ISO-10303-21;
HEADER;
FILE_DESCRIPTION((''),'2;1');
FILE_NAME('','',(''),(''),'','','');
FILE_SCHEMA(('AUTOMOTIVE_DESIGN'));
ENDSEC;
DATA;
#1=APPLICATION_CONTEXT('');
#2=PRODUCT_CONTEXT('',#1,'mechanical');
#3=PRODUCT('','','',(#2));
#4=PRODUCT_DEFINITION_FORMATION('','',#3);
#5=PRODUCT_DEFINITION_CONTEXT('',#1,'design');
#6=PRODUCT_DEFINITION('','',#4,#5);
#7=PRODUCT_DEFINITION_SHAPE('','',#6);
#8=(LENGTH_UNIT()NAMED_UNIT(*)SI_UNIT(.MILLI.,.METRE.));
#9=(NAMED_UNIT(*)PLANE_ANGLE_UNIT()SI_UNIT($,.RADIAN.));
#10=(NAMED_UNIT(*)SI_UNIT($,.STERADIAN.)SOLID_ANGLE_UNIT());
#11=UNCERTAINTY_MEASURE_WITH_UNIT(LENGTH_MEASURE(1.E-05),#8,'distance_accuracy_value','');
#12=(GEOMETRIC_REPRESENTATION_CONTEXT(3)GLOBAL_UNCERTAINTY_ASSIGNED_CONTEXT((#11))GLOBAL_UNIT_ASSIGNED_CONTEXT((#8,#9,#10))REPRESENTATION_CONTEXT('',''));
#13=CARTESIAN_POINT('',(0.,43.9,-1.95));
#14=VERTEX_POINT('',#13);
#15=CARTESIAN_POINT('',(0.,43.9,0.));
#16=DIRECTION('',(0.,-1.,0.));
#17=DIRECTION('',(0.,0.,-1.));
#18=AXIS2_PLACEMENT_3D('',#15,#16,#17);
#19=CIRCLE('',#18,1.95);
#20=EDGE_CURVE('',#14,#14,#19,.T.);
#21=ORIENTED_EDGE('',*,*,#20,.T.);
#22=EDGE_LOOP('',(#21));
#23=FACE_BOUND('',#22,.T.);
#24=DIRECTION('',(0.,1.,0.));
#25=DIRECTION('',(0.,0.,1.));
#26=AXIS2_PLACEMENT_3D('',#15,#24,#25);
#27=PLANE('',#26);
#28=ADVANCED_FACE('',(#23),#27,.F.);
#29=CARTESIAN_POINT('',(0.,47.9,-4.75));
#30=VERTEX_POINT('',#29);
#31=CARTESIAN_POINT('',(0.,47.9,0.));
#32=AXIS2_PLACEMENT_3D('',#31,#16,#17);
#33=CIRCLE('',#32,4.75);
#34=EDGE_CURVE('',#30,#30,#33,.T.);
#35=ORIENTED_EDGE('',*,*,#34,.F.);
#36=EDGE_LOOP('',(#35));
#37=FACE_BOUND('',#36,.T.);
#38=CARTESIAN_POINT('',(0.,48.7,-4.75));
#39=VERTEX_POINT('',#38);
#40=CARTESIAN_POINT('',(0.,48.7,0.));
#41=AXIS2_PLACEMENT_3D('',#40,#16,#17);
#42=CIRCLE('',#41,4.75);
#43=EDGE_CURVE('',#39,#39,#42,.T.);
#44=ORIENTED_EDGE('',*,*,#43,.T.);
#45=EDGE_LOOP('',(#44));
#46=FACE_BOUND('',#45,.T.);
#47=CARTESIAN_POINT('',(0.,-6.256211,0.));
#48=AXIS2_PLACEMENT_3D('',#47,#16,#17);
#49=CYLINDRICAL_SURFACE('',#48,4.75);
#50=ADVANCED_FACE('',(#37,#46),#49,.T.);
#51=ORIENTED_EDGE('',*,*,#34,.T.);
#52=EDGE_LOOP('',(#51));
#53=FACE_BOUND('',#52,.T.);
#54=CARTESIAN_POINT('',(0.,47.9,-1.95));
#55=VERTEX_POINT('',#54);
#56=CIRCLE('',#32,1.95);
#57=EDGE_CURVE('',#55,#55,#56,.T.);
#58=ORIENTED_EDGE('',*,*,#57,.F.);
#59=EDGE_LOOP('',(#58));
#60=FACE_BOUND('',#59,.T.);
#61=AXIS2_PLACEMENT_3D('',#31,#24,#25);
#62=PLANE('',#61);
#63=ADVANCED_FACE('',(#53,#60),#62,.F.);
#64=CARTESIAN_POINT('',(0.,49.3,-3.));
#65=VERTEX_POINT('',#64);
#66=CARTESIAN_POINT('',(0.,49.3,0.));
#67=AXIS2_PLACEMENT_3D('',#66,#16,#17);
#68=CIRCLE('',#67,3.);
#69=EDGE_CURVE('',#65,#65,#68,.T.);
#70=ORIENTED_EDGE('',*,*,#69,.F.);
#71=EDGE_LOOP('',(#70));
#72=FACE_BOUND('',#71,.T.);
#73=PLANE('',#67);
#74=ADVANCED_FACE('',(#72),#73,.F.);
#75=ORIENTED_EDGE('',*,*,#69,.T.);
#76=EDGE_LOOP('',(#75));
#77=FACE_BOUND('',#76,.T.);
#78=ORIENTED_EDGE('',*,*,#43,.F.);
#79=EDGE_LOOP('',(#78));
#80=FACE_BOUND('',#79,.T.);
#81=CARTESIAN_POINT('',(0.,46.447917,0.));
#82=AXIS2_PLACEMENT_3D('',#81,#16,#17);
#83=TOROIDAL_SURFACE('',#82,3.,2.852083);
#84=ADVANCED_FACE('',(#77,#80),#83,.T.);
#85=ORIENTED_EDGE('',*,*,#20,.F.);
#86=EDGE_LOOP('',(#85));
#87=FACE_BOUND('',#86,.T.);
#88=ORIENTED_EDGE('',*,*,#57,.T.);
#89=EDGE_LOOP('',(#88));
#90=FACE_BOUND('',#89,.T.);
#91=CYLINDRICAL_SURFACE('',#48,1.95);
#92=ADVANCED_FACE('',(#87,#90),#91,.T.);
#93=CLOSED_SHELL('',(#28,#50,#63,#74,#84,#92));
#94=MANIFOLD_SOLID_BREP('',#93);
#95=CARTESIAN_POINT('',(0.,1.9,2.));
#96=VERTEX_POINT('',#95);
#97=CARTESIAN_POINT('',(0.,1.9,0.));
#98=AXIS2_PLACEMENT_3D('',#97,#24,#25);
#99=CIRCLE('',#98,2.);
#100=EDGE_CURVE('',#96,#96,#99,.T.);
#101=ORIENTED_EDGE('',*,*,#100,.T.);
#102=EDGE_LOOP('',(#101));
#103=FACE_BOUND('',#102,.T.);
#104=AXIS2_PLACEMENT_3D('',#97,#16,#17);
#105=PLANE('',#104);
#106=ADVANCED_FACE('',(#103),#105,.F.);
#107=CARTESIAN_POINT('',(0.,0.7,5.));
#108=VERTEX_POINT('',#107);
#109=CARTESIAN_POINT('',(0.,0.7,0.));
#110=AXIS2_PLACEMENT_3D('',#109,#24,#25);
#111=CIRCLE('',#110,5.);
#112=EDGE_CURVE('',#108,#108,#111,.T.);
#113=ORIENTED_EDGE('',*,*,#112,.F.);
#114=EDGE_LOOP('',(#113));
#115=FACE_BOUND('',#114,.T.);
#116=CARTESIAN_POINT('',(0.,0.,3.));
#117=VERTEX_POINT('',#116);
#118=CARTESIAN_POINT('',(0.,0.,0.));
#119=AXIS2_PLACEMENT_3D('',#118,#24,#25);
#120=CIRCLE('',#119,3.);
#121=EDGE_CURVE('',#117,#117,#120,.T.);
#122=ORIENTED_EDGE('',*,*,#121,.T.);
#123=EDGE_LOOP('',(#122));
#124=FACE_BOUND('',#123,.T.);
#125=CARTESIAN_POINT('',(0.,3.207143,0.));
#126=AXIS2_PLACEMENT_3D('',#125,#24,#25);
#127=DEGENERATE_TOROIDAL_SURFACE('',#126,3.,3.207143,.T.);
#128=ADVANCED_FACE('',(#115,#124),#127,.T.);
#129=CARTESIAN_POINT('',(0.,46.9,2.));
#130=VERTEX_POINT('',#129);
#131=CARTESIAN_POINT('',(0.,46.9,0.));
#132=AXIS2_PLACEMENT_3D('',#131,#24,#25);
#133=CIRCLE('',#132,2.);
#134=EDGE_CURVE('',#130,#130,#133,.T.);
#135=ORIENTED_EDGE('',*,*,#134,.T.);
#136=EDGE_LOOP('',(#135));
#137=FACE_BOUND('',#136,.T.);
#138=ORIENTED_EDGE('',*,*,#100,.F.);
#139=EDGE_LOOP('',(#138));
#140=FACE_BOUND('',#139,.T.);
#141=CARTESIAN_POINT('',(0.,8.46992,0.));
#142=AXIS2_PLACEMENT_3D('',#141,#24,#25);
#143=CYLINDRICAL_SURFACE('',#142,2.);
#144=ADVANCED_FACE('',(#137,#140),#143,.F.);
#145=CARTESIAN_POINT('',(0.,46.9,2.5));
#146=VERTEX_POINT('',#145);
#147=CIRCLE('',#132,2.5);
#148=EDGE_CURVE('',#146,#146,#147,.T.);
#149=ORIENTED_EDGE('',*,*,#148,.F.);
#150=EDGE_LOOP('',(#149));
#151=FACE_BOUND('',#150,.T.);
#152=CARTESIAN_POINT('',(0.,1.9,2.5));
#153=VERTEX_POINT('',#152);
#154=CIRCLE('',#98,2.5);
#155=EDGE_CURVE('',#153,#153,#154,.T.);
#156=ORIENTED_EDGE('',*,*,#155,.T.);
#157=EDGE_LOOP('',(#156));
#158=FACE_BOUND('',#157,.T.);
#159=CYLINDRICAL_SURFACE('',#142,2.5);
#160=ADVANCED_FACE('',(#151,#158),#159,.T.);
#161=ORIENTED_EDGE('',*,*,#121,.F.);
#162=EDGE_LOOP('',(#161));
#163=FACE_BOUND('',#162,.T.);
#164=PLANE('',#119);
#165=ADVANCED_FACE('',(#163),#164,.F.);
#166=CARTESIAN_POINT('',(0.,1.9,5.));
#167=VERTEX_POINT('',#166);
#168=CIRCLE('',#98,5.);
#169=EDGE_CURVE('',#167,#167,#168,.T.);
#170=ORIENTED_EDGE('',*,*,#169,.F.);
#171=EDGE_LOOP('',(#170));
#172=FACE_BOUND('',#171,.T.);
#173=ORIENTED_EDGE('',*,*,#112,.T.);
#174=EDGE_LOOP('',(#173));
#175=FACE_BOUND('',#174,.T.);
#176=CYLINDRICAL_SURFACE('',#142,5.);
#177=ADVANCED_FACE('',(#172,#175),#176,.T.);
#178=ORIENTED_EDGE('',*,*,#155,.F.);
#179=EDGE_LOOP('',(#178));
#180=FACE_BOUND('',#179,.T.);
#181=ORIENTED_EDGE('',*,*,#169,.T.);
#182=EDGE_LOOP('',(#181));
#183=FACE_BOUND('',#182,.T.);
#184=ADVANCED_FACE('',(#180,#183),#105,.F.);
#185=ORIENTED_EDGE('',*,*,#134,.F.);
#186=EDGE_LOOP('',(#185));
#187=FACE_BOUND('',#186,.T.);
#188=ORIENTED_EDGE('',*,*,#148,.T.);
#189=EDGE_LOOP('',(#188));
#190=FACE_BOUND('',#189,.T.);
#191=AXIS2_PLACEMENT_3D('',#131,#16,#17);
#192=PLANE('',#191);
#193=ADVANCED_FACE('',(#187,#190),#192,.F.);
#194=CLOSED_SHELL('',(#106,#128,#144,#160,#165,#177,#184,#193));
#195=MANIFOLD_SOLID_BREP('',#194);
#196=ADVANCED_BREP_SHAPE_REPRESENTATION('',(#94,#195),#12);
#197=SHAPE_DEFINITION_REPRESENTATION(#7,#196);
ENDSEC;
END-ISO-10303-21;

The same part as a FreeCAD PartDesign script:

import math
import FreeCAD as App
import Part
import Sketcher
from FreeCAD import Vector

doc = App.newDocument("Part")
body = doc.addObject("PartDesign::Body", "Body")

sketch1 = doc.addObject("Sketcher::SketchObject", "Sketch")
body.addObject(sketch1)
sketch1.AttachmentSupport = (doc.XY_Plane, [""])
sketch1.MapMode = "FlatFace"
sketch1.addGeometry(Part.LineSegment(Vector(0, 1.9, 0), Vector(0, 0, 0)), False)
sketch1.addGeometry(Part.LineSegment(Vector(0, 0, 0), Vector(3, 0, 0)), False)
sketch1.addGeometry(Part.ArcOfCircle(Part.Circle(Vector(3, 3.207143, 0), Vector(0, 0, 1), 3.207143), math.radians(-90), math.radians(-51.419908)), False)
sketch1.addGeometry(Part.LineSegment(Vector(5, 0.7, 0), Vector(5, 1.9, 0)), False)
sketch1.addGeometry(Part.LineSegment(Vector(5, 1.9, 0), Vector(2.5, 1.9, 0)), False)
sketch1.addGeometry(Part.LineSegment(Vector(2.5, 1.9, 0), Vector(2.5, 46.9, 0)), False)
sketch1.addGeometry(Part.LineSegment(Vector(2.5, 46.9, 0), Vector(2, 46.9, 0)), False)
sketch1.addGeometry(Part.LineSegment(Vector(2, 46.9, 0), Vector(2, 1.9, 0)), False)
sketch1.addGeometry(Part.LineSegment(Vector(2, 1.9, 0), Vector(0, 1.9, 0)), False)
sketch1.addConstraint(Sketcher.Constraint("Coincident", 0, 2, 1, 1))
sketch1.addConstraint(Sketcher.Constraint("Tangent", 1, 2, 2, 1))
sketch1.addConstraint(Sketcher.Constraint("Coincident", 2, 2, 3, 1))
sketch1.addConstraint(Sketcher.Constraint("Coincident", 3, 2, 4, 1))
sketch1.addConstraint(Sketcher.Constraint("Coincident", 4, 2, 5, 1))
sketch1.addConstraint(Sketcher.Constraint("Coincident", 5, 2, 6, 1))
sketch1.addConstraint(Sketcher.Constraint("Coincident", 6, 2, 7, 1))
sketch1.addConstraint(Sketcher.Constraint("Coincident", 7, 2, 8, 1))
sketch1.addConstraint(Sketcher.Constraint("Coincident", 8, 2, 0, 1))
sketch1.addConstraint(Sketcher.Constraint("Vertical", 0))
sketch1.addConstraint(Sketcher.Constraint("Horizontal", 1))
sketch1.addConstraint(Sketcher.Constraint("Vertical", 3))
sketch1.addConstraint(Sketcher.Constraint("Horizontal", 4))
sketch1.addConstraint(Sketcher.Constraint("Vertical", 5))
sketch1.addConstraint(Sketcher.Constraint("Horizontal", 6))
sketch1.addConstraint(Sketcher.Constraint("Vertical", 7))
sketch1.addConstraint(Sketcher.Constraint("Horizontal", 8))
sketch1.addConstraint(Sketcher.Constraint("Coincident", 0, 2, -1, 1))
sketch1.addConstraint(Sketcher.Constraint("Horizontal", 4, 2, 7, 2))
sketch1.addConstraint(Sketcher.Constraint("DistanceX", 1, 1, 1, 2, 3.0))
sketch1.addConstraint(Sketcher.Constraint("DistanceX", 8, 2, 8, 1, 2.0))
sketch1.addConstraint(Sketcher.Constraint("DistanceY", 5, 1, 5, 2, 45.0))
sketch1.addConstraint(Sketcher.Constraint("DistanceX", 4, 2, 4, 1, 2.5))
sketch1.addConstraint(Sketcher.Constraint("DistanceX", 6, 2, 6, 1, 0.5))
sketch1.addConstraint(Sketcher.Constraint("DistanceY", 0, 2, 0, 1, 1.9))
sketch1.addConstraint(Sketcher.Constraint("DistanceY", 3, 1, 3, 2, 1.2))
revolution = doc.addObject("PartDesign::Revolution", "Revolution")
body.addObject(revolution)
revolution.Profile = sketch1
revolution.ReferenceAxis = (sketch1, ["V_Axis"])
revolution.Angle = 360
body2 = doc.addObject("PartDesign::Body", "Body001")

sketch2 = doc.addObject("Sketcher::SketchObject", "Sketch001")
body2.addObject(sketch2)
sketch2.AttachmentSupport = (doc.getObject("XY_Plane001"), [""])
sketch2.MapMode = "FlatFace"
sketch2.addGeometry(Part.LineSegment(Vector(0, 43.9, 0), Vector(0, 49.3, 0)), False)
sketch2.addGeometry(Part.LineSegment(Vector(0, 49.3, 0), Vector(-3, 49.3, 0)), False)
sketch2.addGeometry(Part.ArcOfCircle(Part.Circle(Vector(-3, 46.447917, 0), Vector(0, 0, 1), 2.852083), math.radians(90), math.radians(127.849289)), False)
sketch2.addGeometry(Part.LineSegment(Vector(-4.75, 48.7, 0), Vector(-4.75, 47.9, 0)), False)
sketch2.addGeometry(Part.LineSegment(Vector(-4.75, 47.9, 0), Vector(-1.95, 47.9, 0)), False)
sketch2.addGeometry(Part.LineSegment(Vector(-1.95, 47.9, 0), Vector(-1.95, 43.9, 0)), False)
sketch2.addGeometry(Part.LineSegment(Vector(-1.95, 43.9, 0), Vector(0, 43.9, 0)), False)
sketch2.addConstraint(Sketcher.Constraint("Coincident", 0, 2, 1, 1))
sketch2.addConstraint(Sketcher.Constraint("Tangent", 1, 2, 2, 1))
sketch2.addConstraint(Sketcher.Constraint("Coincident", 2, 2, 3, 1))
sketch2.addConstraint(Sketcher.Constraint("Coincident", 3, 2, 4, 1))
sketch2.addConstraint(Sketcher.Constraint("Coincident", 4, 2, 5, 1))
sketch2.addConstraint(Sketcher.Constraint("Coincident", 5, 2, 6, 1))
sketch2.addConstraint(Sketcher.Constraint("Coincident", 6, 2, 0, 1))
sketch2.addConstraint(Sketcher.Constraint("Vertical", 0))
sketch2.addConstraint(Sketcher.Constraint("Horizontal", 1))
sketch2.addConstraint(Sketcher.Constraint("Vertical", 3))
sketch2.addConstraint(Sketcher.Constraint("Horizontal", 4))
sketch2.addConstraint(Sketcher.Constraint("Vertical", 5))
sketch2.addConstraint(Sketcher.Constraint("Horizontal", 6))
sketch2.addConstraint(Sketcher.Constraint("PointOnObject", 0, 2, -2))
sketch2.addConstraint(Sketcher.Constraint("DistanceX", 1, 2, 1, 1, 3.0))
sketch2.addConstraint(Sketcher.Constraint("DistanceY", 5, 2, 5, 1, 4.0))
sketch2.addConstraint(Sketcher.Constraint("DistanceX", 4, 1, 4, 2, 2.8))
sketch2.addConstraint(Sketcher.Constraint("DistanceY", 0, 1, 0, 2, 5.4))
sketch2.addConstraint(Sketcher.Constraint("DistanceY", 3, 2, 3, 1, 0.8))
sketch2.addConstraint(Sketcher.Constraint("DistanceX", 6, 1, 6, 2, 1.95))
sketch2.addConstraint(Sketcher.Constraint("DistanceY", -1, 1, 0, 2, 49.3))
revolution2 = doc.addObject("PartDesign::Revolution", "Revolution001")
body2.addObject(revolution2)
revolution2.Profile = sketch2
revolution2.ReferenceAxis = (sketch2, ["V_Axis"])
revolution2.Angle = 360

doc.recompute()
